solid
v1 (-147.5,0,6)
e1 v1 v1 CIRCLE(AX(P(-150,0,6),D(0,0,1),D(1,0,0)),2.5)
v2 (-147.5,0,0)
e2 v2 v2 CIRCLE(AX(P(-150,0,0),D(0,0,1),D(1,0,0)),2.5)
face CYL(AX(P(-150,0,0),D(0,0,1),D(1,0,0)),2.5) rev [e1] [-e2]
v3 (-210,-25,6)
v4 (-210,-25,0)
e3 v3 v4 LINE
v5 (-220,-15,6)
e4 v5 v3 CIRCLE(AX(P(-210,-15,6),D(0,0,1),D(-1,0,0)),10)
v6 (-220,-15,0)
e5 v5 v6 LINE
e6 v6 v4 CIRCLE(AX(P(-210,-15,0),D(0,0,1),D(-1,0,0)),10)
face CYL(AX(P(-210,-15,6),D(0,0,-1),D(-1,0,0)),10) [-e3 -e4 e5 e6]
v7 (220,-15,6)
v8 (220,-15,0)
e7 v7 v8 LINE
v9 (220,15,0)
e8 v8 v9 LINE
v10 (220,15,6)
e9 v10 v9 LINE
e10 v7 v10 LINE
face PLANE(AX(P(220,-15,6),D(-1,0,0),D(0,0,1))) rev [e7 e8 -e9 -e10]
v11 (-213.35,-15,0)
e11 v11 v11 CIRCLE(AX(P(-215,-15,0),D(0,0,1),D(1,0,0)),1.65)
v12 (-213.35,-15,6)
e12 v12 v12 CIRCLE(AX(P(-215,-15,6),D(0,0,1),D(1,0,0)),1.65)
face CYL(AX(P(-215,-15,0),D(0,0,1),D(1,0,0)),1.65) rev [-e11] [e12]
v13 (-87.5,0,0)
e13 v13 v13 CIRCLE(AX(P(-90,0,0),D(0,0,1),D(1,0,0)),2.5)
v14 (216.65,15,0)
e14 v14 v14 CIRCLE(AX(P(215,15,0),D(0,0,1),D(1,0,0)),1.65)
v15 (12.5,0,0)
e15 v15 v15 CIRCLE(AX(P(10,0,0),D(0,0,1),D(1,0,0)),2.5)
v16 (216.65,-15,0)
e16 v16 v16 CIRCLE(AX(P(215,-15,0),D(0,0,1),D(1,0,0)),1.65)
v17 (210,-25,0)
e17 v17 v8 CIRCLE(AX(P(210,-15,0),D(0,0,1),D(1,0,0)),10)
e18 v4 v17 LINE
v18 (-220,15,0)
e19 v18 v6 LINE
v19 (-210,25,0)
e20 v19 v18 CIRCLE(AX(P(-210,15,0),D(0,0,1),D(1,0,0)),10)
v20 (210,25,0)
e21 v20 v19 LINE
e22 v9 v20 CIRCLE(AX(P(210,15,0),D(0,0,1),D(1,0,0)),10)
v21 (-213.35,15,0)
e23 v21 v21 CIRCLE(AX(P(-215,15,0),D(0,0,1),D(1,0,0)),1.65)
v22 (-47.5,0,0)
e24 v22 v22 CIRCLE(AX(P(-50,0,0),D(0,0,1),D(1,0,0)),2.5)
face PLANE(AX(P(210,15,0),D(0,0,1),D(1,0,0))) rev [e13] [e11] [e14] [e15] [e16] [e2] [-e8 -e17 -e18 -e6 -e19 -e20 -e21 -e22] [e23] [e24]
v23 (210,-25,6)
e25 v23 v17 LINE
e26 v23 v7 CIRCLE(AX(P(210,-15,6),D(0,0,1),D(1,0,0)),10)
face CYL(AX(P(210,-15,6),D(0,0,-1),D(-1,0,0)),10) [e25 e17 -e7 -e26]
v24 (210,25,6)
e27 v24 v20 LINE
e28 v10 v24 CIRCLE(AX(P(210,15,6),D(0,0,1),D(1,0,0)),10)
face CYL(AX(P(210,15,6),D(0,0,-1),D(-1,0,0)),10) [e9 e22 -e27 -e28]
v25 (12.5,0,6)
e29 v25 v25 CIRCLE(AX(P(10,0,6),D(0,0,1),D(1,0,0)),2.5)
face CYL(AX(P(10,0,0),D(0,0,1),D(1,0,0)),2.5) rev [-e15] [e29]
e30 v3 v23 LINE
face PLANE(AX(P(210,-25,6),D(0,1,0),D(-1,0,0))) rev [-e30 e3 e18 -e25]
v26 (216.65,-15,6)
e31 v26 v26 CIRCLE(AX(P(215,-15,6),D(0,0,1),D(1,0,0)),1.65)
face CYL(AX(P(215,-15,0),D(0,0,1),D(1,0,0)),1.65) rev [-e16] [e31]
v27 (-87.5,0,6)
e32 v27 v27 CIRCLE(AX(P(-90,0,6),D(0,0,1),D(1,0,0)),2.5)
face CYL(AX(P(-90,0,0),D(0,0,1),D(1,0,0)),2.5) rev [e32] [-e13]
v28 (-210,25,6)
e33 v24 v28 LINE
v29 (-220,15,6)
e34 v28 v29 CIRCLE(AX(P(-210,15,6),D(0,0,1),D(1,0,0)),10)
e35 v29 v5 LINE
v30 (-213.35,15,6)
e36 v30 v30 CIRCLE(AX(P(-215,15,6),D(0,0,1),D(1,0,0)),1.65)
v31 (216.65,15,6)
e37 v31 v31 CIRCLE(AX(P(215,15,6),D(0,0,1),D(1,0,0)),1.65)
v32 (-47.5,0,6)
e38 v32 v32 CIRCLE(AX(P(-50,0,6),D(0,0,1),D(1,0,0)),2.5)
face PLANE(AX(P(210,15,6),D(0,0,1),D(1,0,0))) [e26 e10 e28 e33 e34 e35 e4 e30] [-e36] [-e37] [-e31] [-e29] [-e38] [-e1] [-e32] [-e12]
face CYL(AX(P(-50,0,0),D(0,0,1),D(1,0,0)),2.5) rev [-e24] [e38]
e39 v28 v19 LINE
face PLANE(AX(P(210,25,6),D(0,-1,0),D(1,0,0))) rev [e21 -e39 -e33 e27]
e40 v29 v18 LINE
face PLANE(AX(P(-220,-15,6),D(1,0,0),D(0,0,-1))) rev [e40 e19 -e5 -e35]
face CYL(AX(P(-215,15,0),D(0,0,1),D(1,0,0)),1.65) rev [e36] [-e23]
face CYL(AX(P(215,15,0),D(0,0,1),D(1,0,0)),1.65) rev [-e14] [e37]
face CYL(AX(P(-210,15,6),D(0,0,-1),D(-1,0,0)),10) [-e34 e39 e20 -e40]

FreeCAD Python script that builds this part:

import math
import FreeCAD as App
import Part
import Sketcher

doc = App.newDocument("Part")
body = doc.addObject("PartDesign::Body", "Body")

# Sketch on XY plane
sketch1 = body.newObject("Sketcher::SketchObject", "Sketch")
sketch1.AttachmentSupport = (doc.getObject("XY_Plane"), [""])
sketch1.MapMode = "FlatFace"
sketch1.addGeometry([
    Part.LineSegment(App.Vector(-210, -25, 0), App.Vector(210, -25, 0)),  # 0
    Part.ArcOfCircle(Part.Circle(App.Vector(210, -15, 0), App.Vector(0, 0, 1), 10), math.radians(-90), math.radians(0)),  # 1
    Part.LineSegment(App.Vector(220, -15, 0), App.Vector(220, 15, 0)),  # 2
    Part.ArcOfCircle(Part.Circle(App.Vector(210, 15, 0), App.Vector(0, 0, 1), 10), math.radians(0), math.radians(90)),  # 3
    Part.LineSegment(App.Vector(210, 25, 0), App.Vector(-210, 25, 0)),  # 4
    Part.ArcOfCircle(Part.Circle(App.Vector(-210, 15, 0), App.Vector(0, 0, 1), 10), math.radians(90), math.radians(180)),  # 5
    Part.LineSegment(App.Vector(-220, 15, 0), App.Vector(-220, -15, 0)),  # 6
    Part.ArcOfCircle(Part.Circle(App.Vector(-210, -15, 0), App.Vector(0, 0, 1), 10), math.radians(180), math.radians(270)),  # 7
], False)
sketch1.addConstraint([
    Sketcher.Constraint("Tangent", 0, 2, 1, 1),
    Sketcher.Constraint("Tangent", 1, 2, 2, 1),
    Sketcher.Constraint("Tangent", 2, 2, 3, 1),
    Sketcher.Constraint("Tangent", 3, 2, 4, 1),
    Sketcher.Constraint("Tangent", 4, 2, 5, 1),
    Sketcher.Constraint("Tangent", 5, 2, 6, 1),
    Sketcher.Constraint("Tangent", 6, 2, 7, 1),
    Sketcher.Constraint("Tangent", 7, 2, 0, 1),
    Sketcher.Constraint("Horizontal", 0),
    Sketcher.Constraint("Vertical", 2),
    Sketcher.Constraint("Horizontal", 4),
    Sketcher.Constraint("Vertical", 6),
    Sketcher.Constraint("Equal", 1, 3),
    Sketcher.Constraint("Equal", 3, 5),
    Sketcher.Constraint("Equal", 5, 7),
    Sketcher.Constraint("Symmetric", 1, 3, 5, 3, -1, 1),
    Sketcher.Constraint("Radius", 1, 10.0),
    Sketcher.Constraint("DistanceX", 0, 1, 0, 2, 420.0),
    Sketcher.Constraint("DistanceY", 2, 1, 2, 2, 30.0),
])
pad1 = body.newObject("PartDesign::Pad", "Pad")
pad1.Profile = sketch1
pad1.Length = 6

# Sketch on XY plane
sketch2 = body.newObject("Sketcher::SketchObject", "Sketch001")
sketch2.AttachmentSupport = (doc.getObject("XY_Plane"), [""])
sketch2.MapMode = "FlatFace"
sketch2.AttachmentOffset = App.Placement(App.Vector(0, 0, 6), App.Rotation())
sketch2.addGeometry([
    Part.Circle(App.Vector(215, 15, 0), App.Vector(0, 0, 1), 1.65),  # 0
    Part.Circle(App.Vector(215, -15, 0), App.Vector(0, 0, 1), 1.65),  # 1
    Part.Circle(App.Vector(-215, 15, 0), App.Vector(0, 0, 1), 1.65),  # 2
    Part.Circle(App.Vector(-215, -15, 0), App.Vector(0, 0, 1), 1.65),  # 3
    Part.Circle(App.Vector(-150, 0, 0), App.Vector(0, 0, 1), 2.5),  # 4
    Part.Circle(App.Vector(-90, 0, 0), App.Vector(0, 0, 1), 2.5),  # 5
    Part.Circle(App.Vector(-50, 0, 0), App.Vector(0, 0, 1), 2.5),  # 6
    Part.Circle(App.Vector(10, 0, 0), App.Vector(0, 0, 1), 2.5),  # 7
], False)
sketch2.addConstraint([
    Sketcher.Constraint("Equal", 0, 1),
    Sketcher.Constraint("Equal", 1, 2),
    Sketcher.Constraint("Equal", 2, 3),
    Sketcher.Constraint("Equal", 4, 5),
    Sketcher.Constraint("Equal", 5, 6),
    Sketcher.Constraint("Equal", 6, 7),
    Sketcher.Constraint("Symmetric", 1, 3, 2, 3, -1, 1),
    Sketcher.Constraint("Symmetric", 0, 3, 3, 3, -1, 1),
    Sketcher.Constraint("Symmetric", 0, 3, 2, 3, -2),
    Sketcher.Constraint("PointOnObject", 4, 3, -1),
    Sketcher.Constraint("PointOnObject", 5, 3, -1),
    Sketcher.Constraint("PointOnObject", 6, 3, -1),
    Sketcher.Constraint("PointOnObject", 7, 3, -1),
    Sketcher.Constraint("Diameter", 4, 5.0),
    Sketcher.Constraint("Diameter", 0, 3.3),
    Sketcher.Constraint("DistanceX", -1, 1, 0, 3, 215.0),
    Sketcher.Constraint("DistanceY", -1, 1, 0, 3, 15.0),
    Sketcher.Constraint("DistanceX", 4, 3, -1, 1, 150.0),
    Sketcher.Constraint("DistanceX", 5, 3, -1, 1, 90.0),
    Sketcher.Constraint("DistanceX", 6, 3, -1, 1, 50.0),
    Sketcher.Constraint("DistanceX", -1, 1, 7, 3, 10.0),
])
pocket1 = body.newObject("PartDesign::Pocket", "Pocket")
pocket1.Profile = sketch2
pocket1.Length = 6

# Sketch on XY plane
sketch3 = body.newObject("Sketcher::SketchObject", "Sketch002")
sketch3.AttachmentSupport = (doc.getObject("XY_Plane"), [""])
sketch3.MapMode = "FlatFace"
sketch3.AttachmentOffset = App.Placement(App.Vector(0, 0, 6), App.Rotation())
sketch3.addGeometry([
    Part.Circle(App.Vector(-150, 0, 0), App.Vector(0, 0, 1), 2.5),
    Part.Circle(App.Vector(-90, 0, 0), App.Vector(0, 0, 1), 2.5),
    Part.Circle(App.Vector(-50, 0, 0), App.Vector(0, 0, 1), 2.5),
    Part.Circle(App.Vector(10, 0, 0), App.Vector(0, 0, 1), 2.5),
], False)
sketch3.addConstraint([
    Sketcher.Constraint("Equal", 0, 1),
    Sketcher.Constraint("Equal", 1, 2),
    Sketcher.Constraint("Equal", 2, 3),
    Sketcher.Constraint("PointOnObject", 0, 3, -1),
    Sketcher.Constraint("PointOnObject", 1, 3, -1),
    Sketcher.Constraint("PointOnObject", 2, 3, -1),
    Sketcher.Constraint("PointOnObject", 3, 3, -1),
    Sketcher.Constraint("Diameter", 0, 5.0),
    Sketcher.Constraint("DistanceX", 0, 3, -1, 1, 150.0),
    Sketcher.Constraint("DistanceX", 1, 3, -1, 1, 90.0),
    Sketcher.Constraint("DistanceX", 2, 3, -1, 1, 50.0),
    Sketcher.Constraint("DistanceX", -1, 1, 3, 3, 10.0),
])
doc.recompute()
hole = body.newObject("PartDesign::Hole", "Hole")
hole.Profile = sketch3
hole.ThreadType = "None"
hole.Diameter = 5
hole.DepthType = "Dimension"
hole.Depth = 15
hole.DrillPoint = "Angled"
hole.DrillPointAngle = 118

# Sketch on XY plane
sketch4 = body.newObject("Sketcher::SketchObject", "Sketch003")
sketch4.AttachmentSupport = (doc.getObject("XY_Plane"), [""])
sketch4.MapMode = "FlatFace"
sketch4.AttachmentOffset = App.Placement(App.Vector(0, 0, 6), App.Rotation())
sketch4.addGeometry([
    Part.Circle(App.Vector(-215, 15, 0), App.Vector(0, 0, 1), 1.65),
    Part.Circle(App.Vector(-215, -15, 0), App.Vector(0, 0, 1), 1.65),
    Part.Circle(App.Vector(215, 15, 0), App.Vector(0, 0, 1), 1.65),
    Part.Circle(App.Vector(215, -15, 0), App.Vector(0, 0, 1), 1.65),
], False)
sketch4.addConstraint([
    Sketcher.Constraint("Equal", 0, 1),
    Sketcher.Constraint("Equal", 1, 2),
    Sketcher.Constraint("Equal", 2, 3),
    Sketcher.Constraint("Symmetric", 1, 3, 2, 3, -1, 1),
    Sketcher.Constraint("Symmetric", 0, 3, 3, 3, -1, 1),
    Sketcher.Constraint("Symmetric", 0, 3, 2, 3, -2),
    Sketcher.Constraint("Diameter", 0, 3.3),
    Sketcher.Constraint("DistanceX", 0, 3, -1, 1, 215.0),
    Sketcher.Constraint("DistanceY", -1, 1, 0, 3, 15.0),
])
doc.recompute()
hole2 = body.newObject("PartDesign::Hole", "Hole001")
hole2.Profile = sketch4
hole2.ThreadType = "None"
hole2.Diameter = 3.3
hole2.DepthType = "Dimension"
hole2.Depth = 15
hole2.DrillPoint = "Angled"
hole2.DrillPointAngle = 118

doc.recompute()
